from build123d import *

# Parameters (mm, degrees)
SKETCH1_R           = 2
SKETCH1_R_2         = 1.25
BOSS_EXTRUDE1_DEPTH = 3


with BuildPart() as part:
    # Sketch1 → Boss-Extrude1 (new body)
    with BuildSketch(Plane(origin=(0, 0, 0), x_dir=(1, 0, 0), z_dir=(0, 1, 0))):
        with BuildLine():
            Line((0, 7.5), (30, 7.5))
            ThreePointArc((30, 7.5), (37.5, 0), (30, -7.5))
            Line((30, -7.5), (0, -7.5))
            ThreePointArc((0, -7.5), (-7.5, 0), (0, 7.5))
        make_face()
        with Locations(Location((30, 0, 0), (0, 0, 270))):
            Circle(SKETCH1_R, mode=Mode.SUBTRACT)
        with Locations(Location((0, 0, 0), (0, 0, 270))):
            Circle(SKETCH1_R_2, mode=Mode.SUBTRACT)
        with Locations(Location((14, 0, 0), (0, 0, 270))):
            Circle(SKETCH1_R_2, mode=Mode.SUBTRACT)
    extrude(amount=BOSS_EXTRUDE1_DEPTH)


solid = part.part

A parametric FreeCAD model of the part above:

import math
import FreeCAD as App
import Part
import Sketcher

V = App.Vector
Q = App.Units.Quantity

doc = App.newDocument("Part")
params = doc.addObject("Spreadsheet::Sheet", "Params")
for row, (alias, value) in enumerate([
    ("sketch1_diameter", "4 mm"),
    ("sketch1_diameter2", "2.5 mm"),
    ("sketch1_radius", "7.5 mm"),
    ("sketch1_width", "30 mm"),
    ("pad1_length", "3 mm"),
], start=1):
    params.set(f"A{row}", alias)
    params.set(f"B{row}", "=" + value)
    params.setAlias(f"B{row}", alias)

body = doc.addObject("PartDesign::Body", "Body")

# Sketch on XZ plane
sketch1 = body.newObject("Sketcher::SketchObject", "Sketch")
sketch1.AttachmentSupport = (doc.getObject("XZ_Plane"), [""])
sketch1.MapMode = "FlatFace"
sketch1.addGeometry([
    Part.LineSegment(V(30, -7.5, 0), V(0, -7.5, 0)),  # 0
    Part.ArcOfCircle(Part.Circle(V(0, 0, 0), V(0, 0, 1), 7.5), math.radians(90), math.radians(270)),  # 1
    Part.LineSegment(V(0, 7.5, 0), V(30, 7.5, 0)),  # 2
    Part.ArcOfCircle(Part.Circle(V(30, 0, 0), V(0, 0, 1), 7.5), math.radians(-90), math.radians(90)),  # 3
    Part.Circle(V(30, 0, 0), V(0, 0, 1), 2),  # 4
    Part.Circle(V(14, 0, 0), V(0, 0, 1), 1.2),  # 5
    Part.Circle(V(0, 0, 0), V(0, 0, 1), 1.2),  # 6
], False)
sketch1.addConstraint([
    Sketcher.Constraint("Tangent", 0, 2, 1, 2),
    Sketcher.Constraint("Tangent", 1, 1, 2, 1),
    Sketcher.Constraint("Tangent", 2, 2, 3, 2),
    Sketcher.Constraint("Tangent", 3, 1, 0, 1),
    Sketcher.Constraint("Horizontal", 0),
    Sketcher.Constraint("Horizontal", 2),
    Sketcher.Constraint("Coincident", 1, 3, -1, 1),
    Sketcher.Constraint("Coincident", 6, 3, -1, 1),
    Sketcher.Constraint("Coincident", 4, 3, 3, 3),
    Sketcher.Constraint("Equal", 5, 6),
    Sketcher.Constraint("PointOnObject", 5, 3, -1),
    Sketcher.Constraint("Diameter", 4, Q("4 mm")),
    Sketcher.Constraint("Diameter", 5, Q("2.5 mm")),
    Sketcher.Constraint("Radius", 1, Q("7.5 mm")),
    Sketcher.Constraint("DistanceX", 0, 2, 0, 1, Q("30 mm")),
    Sketcher.Constraint("DistanceX", -1, 1, 5, 3, Q("14 mm")),
])
sketch1.setExpression("Constraints[11]", "Params.sketch1_diameter")
sketch1.setExpression("Constraints[12]", "Params.sketch1_diameter2")
sketch1.setExpression("Constraints[13]", "Params.sketch1_radius")
sketch1.setExpression("Constraints[14]", "Params.sketch1_width")
pad1 = body.newObject("PartDesign::Pad", "Pad")
pad1.Profile = sketch1
pad1.setExpression("Length", "Params.pad1_length")
pad1.Reversed = True

doc.recompute()
